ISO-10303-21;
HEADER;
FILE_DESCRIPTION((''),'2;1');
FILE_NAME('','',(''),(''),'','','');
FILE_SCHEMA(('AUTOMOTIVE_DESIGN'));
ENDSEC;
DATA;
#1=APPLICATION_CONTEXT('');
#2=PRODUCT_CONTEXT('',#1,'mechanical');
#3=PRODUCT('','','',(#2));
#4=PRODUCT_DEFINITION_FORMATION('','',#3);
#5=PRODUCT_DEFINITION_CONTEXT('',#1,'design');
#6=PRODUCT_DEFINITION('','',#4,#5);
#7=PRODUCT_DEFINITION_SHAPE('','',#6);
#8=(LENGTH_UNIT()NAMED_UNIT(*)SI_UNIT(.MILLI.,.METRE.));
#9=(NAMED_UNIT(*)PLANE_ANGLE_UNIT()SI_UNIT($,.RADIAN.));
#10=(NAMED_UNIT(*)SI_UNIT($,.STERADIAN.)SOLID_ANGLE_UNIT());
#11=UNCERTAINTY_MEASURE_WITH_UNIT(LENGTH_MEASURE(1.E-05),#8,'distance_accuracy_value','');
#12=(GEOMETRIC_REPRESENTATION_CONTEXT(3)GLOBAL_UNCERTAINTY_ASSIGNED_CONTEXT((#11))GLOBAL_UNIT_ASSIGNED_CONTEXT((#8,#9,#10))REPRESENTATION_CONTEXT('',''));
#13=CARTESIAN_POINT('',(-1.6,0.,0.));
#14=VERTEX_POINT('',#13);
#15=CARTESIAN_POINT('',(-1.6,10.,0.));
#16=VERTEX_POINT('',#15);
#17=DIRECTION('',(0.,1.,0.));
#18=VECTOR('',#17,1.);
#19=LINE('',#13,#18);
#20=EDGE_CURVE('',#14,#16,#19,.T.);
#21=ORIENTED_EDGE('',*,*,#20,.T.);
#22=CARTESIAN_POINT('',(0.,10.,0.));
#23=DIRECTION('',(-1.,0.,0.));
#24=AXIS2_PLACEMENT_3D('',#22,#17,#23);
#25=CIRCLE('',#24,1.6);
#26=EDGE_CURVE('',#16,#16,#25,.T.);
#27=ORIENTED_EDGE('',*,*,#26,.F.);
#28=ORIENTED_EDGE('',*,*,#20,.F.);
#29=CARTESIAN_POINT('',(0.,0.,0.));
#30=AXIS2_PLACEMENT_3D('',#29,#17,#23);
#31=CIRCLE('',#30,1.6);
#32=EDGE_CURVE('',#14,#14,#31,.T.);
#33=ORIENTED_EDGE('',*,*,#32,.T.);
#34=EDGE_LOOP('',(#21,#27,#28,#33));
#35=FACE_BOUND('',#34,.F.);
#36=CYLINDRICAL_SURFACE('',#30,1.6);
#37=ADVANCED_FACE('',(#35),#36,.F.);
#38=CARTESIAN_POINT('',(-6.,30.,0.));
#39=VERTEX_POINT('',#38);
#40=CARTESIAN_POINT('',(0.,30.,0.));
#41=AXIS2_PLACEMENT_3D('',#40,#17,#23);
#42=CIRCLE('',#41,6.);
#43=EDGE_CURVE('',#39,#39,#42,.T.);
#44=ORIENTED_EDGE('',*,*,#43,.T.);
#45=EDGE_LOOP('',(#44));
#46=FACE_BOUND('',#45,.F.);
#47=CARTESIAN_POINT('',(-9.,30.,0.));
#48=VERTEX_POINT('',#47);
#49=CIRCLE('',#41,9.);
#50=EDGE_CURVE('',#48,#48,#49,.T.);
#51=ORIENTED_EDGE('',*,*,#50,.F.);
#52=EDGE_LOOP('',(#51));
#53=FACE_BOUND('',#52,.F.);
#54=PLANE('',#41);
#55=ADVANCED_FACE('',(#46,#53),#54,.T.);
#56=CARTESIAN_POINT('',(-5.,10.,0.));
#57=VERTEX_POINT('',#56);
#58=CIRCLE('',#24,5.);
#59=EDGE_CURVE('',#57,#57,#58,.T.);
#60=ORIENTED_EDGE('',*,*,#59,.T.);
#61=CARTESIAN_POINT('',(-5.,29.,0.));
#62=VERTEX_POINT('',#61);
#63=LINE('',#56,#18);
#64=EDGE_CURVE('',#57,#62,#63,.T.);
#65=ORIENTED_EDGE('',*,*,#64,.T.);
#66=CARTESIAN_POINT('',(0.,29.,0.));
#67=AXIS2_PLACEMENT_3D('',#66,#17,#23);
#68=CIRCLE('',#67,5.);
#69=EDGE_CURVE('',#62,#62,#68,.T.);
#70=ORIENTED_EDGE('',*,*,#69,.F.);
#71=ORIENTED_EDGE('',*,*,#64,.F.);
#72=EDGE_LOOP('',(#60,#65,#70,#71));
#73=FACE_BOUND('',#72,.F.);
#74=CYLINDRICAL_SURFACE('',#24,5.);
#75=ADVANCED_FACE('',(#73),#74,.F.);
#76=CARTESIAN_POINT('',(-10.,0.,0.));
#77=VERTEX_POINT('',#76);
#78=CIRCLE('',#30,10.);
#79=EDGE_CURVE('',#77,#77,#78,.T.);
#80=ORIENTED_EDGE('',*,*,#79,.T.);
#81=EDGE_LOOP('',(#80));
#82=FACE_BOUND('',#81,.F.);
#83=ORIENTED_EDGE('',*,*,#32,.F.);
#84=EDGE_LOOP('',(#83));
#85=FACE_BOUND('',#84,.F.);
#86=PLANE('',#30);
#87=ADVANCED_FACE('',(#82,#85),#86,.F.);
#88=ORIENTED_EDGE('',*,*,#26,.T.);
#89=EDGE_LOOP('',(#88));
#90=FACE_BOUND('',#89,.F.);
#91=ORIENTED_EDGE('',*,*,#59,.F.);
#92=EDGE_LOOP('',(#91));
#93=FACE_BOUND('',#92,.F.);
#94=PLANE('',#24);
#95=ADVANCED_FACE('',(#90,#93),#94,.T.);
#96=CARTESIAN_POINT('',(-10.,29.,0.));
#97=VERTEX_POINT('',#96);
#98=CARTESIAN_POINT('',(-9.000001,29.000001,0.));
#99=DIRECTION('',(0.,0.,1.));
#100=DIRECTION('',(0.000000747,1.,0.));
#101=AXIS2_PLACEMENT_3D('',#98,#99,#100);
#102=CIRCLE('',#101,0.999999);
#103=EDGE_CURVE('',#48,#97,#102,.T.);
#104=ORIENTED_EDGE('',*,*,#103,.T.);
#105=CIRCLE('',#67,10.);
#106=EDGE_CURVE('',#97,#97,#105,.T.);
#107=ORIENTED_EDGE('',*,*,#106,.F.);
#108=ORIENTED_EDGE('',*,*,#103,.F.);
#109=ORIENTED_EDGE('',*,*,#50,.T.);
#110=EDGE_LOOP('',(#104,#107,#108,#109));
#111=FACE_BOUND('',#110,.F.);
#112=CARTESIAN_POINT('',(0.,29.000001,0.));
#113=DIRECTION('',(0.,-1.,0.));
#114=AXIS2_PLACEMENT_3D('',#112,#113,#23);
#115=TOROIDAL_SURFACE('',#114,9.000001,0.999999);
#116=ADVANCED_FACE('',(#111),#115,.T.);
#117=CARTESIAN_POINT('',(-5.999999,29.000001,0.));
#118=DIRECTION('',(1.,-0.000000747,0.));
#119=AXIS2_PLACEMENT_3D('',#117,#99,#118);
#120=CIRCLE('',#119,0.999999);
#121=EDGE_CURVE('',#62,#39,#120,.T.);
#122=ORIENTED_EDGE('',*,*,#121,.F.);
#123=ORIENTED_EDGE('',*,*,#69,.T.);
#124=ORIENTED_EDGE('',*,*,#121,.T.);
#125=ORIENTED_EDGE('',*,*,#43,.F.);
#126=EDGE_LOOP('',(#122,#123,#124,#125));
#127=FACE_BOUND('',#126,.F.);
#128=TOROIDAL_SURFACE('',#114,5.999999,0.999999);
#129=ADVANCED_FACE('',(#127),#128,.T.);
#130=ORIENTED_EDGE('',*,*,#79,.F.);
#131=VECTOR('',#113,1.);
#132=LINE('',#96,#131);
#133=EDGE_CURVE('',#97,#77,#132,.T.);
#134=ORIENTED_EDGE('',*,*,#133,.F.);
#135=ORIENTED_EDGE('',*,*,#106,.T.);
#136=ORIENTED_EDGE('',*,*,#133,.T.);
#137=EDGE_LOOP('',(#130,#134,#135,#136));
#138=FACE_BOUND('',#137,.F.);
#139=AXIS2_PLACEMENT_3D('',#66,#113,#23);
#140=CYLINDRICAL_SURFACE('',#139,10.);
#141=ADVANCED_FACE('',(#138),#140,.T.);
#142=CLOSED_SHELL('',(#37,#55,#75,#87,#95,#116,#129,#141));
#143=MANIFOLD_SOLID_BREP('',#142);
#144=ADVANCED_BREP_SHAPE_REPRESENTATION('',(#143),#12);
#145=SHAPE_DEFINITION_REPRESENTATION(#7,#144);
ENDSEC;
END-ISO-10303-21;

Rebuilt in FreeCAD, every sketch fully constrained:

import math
import FreeCAD as App
import Part
import Sketcher
Q = App.Units.Quantity

doc = App.newDocument("Part")
body = doc.addObject("PartDesign::Body", "Body")

# Sketch on XY plane
sketch1 = doc.addObject("Sketcher::SketchObject", "Sketch")
body.addObject(sketch1)
sketch1.AttachmentSupport = (doc.XY_Plane, [""])
sketch1.MapMode = "FlatFace"
sketch1.addGeometry(Part.LineSegment(App.Vector(-10, 0, 0), App.Vector(-1.6, 0, 0)), False)
sketch1.addGeometry(Part.LineSegment(App.Vector(-1.6, 0, 0), App.Vector(-1.6, 10, 0)), False)
sketch1.addGeometry(Part.LineSegment(App.Vector(-1.6, 10, 0), App.Vector(-5, 10, 0)), False)
sketch1.addGeometry(Part.LineSegment(App.Vector(-5, 10, 0), App.Vector(-5, 29, 0)), False)
sketch1.addGeometry(Part.ArcOfCircle(Part.Circle(App.Vector(-6, 29, 0), App.Vector(0, 0, 1), 1), math.radians(0), math.radians(90)), False)
sketch1.addGeometry(Part.LineSegment(App.Vector(-6, 30, 0), App.Vector(-9, 30, 0)), False)
sketch1.addGeometry(Part.ArcOfCircle(Part.Circle(App.Vector(-9, 29, 0), App.Vector(0, 0, 1), 1), math.radians(90), math.radians(180)), False)
sketch1.addGeometry(Part.LineSegment(App.Vector(-10, 29, 0), App.Vector(-10, 0, 0)), False)
sketch1.addConstraint(Sketcher.Constraint("Coincident", 0, 2, 1, 1))
sketch1.addConstraint(Sketcher.Constraint("Coincident", 1, 2, 2, 1))
sketch1.addConstraint(Sketcher.Constraint("Coincident", 2, 2, 3, 1))
sketch1.addConstraint(Sketcher.Constraint("Tangent", 3, 2, 4, 1))
sketch1.addConstraint(Sketcher.Constraint("Tangent", 4, 2, 5, 1))
sketch1.addConstraint(Sketcher.Constraint("Tangent", 5, 2, 6, 1))
sketch1.addConstraint(Sketcher.Constraint("Tangent", 6, 2, 7, 1))
sketch1.addConstraint(Sketcher.Constraint("Coincident", 7, 2, 0, 1))
sketch1.addConstraint(Sketcher.Constraint("Horizontal", 0))
sketch1.addConstraint(Sketcher.Constraint("Vertical", 1))
sketch1.addConstraint(Sketcher.Constraint("Horizontal", 2))
sketch1.addConstraint(Sketcher.Constraint("Vertical", 3))
sketch1.addConstraint(Sketcher.Constraint("Horizontal", 5))
sketch1.addConstraint(Sketcher.Constraint("Vertical", 7))
sketch1.addConstraint(Sketcher.Constraint("Equal", 4, 6))
sketch1.addConstraint(Sketcher.Constraint("PointOnObject", 0, 2, -1))
sketch1.addConstraint(Sketcher.Constraint("Radius", 4, Q("0.999999 mm")))
sketch1.addConstraint(Sketcher.Constraint("DistanceX", 5, 2, 5, 1, Q("3 mm")))
sketch1.addConstraint(Sketcher.Constraint("DistanceY", 1, 1, 1, 2, Q("10 mm")))
sketch1.addConstraint(Sketcher.Constraint("DistanceY", 3, 1, 3, 2, Q("19 mm")))
sketch1.addConstraint(Sketcher.Constraint("DistanceX", 0, 1, 0, 2, Q("8.4 mm")))
sketch1.addConstraint(Sketcher.Constraint("DistanceX", 4, 3, -1, 1, Q("5.999999 mm")))
revolution = doc.addObject("PartDesign::Revolution", "Revolution")
body.addObject(revolution)
revolution.Profile = sketch1
revolution.ReferenceAxis = (sketch1, ["V_Axis"])
revolution.Angle = 360

doc.recompute()
